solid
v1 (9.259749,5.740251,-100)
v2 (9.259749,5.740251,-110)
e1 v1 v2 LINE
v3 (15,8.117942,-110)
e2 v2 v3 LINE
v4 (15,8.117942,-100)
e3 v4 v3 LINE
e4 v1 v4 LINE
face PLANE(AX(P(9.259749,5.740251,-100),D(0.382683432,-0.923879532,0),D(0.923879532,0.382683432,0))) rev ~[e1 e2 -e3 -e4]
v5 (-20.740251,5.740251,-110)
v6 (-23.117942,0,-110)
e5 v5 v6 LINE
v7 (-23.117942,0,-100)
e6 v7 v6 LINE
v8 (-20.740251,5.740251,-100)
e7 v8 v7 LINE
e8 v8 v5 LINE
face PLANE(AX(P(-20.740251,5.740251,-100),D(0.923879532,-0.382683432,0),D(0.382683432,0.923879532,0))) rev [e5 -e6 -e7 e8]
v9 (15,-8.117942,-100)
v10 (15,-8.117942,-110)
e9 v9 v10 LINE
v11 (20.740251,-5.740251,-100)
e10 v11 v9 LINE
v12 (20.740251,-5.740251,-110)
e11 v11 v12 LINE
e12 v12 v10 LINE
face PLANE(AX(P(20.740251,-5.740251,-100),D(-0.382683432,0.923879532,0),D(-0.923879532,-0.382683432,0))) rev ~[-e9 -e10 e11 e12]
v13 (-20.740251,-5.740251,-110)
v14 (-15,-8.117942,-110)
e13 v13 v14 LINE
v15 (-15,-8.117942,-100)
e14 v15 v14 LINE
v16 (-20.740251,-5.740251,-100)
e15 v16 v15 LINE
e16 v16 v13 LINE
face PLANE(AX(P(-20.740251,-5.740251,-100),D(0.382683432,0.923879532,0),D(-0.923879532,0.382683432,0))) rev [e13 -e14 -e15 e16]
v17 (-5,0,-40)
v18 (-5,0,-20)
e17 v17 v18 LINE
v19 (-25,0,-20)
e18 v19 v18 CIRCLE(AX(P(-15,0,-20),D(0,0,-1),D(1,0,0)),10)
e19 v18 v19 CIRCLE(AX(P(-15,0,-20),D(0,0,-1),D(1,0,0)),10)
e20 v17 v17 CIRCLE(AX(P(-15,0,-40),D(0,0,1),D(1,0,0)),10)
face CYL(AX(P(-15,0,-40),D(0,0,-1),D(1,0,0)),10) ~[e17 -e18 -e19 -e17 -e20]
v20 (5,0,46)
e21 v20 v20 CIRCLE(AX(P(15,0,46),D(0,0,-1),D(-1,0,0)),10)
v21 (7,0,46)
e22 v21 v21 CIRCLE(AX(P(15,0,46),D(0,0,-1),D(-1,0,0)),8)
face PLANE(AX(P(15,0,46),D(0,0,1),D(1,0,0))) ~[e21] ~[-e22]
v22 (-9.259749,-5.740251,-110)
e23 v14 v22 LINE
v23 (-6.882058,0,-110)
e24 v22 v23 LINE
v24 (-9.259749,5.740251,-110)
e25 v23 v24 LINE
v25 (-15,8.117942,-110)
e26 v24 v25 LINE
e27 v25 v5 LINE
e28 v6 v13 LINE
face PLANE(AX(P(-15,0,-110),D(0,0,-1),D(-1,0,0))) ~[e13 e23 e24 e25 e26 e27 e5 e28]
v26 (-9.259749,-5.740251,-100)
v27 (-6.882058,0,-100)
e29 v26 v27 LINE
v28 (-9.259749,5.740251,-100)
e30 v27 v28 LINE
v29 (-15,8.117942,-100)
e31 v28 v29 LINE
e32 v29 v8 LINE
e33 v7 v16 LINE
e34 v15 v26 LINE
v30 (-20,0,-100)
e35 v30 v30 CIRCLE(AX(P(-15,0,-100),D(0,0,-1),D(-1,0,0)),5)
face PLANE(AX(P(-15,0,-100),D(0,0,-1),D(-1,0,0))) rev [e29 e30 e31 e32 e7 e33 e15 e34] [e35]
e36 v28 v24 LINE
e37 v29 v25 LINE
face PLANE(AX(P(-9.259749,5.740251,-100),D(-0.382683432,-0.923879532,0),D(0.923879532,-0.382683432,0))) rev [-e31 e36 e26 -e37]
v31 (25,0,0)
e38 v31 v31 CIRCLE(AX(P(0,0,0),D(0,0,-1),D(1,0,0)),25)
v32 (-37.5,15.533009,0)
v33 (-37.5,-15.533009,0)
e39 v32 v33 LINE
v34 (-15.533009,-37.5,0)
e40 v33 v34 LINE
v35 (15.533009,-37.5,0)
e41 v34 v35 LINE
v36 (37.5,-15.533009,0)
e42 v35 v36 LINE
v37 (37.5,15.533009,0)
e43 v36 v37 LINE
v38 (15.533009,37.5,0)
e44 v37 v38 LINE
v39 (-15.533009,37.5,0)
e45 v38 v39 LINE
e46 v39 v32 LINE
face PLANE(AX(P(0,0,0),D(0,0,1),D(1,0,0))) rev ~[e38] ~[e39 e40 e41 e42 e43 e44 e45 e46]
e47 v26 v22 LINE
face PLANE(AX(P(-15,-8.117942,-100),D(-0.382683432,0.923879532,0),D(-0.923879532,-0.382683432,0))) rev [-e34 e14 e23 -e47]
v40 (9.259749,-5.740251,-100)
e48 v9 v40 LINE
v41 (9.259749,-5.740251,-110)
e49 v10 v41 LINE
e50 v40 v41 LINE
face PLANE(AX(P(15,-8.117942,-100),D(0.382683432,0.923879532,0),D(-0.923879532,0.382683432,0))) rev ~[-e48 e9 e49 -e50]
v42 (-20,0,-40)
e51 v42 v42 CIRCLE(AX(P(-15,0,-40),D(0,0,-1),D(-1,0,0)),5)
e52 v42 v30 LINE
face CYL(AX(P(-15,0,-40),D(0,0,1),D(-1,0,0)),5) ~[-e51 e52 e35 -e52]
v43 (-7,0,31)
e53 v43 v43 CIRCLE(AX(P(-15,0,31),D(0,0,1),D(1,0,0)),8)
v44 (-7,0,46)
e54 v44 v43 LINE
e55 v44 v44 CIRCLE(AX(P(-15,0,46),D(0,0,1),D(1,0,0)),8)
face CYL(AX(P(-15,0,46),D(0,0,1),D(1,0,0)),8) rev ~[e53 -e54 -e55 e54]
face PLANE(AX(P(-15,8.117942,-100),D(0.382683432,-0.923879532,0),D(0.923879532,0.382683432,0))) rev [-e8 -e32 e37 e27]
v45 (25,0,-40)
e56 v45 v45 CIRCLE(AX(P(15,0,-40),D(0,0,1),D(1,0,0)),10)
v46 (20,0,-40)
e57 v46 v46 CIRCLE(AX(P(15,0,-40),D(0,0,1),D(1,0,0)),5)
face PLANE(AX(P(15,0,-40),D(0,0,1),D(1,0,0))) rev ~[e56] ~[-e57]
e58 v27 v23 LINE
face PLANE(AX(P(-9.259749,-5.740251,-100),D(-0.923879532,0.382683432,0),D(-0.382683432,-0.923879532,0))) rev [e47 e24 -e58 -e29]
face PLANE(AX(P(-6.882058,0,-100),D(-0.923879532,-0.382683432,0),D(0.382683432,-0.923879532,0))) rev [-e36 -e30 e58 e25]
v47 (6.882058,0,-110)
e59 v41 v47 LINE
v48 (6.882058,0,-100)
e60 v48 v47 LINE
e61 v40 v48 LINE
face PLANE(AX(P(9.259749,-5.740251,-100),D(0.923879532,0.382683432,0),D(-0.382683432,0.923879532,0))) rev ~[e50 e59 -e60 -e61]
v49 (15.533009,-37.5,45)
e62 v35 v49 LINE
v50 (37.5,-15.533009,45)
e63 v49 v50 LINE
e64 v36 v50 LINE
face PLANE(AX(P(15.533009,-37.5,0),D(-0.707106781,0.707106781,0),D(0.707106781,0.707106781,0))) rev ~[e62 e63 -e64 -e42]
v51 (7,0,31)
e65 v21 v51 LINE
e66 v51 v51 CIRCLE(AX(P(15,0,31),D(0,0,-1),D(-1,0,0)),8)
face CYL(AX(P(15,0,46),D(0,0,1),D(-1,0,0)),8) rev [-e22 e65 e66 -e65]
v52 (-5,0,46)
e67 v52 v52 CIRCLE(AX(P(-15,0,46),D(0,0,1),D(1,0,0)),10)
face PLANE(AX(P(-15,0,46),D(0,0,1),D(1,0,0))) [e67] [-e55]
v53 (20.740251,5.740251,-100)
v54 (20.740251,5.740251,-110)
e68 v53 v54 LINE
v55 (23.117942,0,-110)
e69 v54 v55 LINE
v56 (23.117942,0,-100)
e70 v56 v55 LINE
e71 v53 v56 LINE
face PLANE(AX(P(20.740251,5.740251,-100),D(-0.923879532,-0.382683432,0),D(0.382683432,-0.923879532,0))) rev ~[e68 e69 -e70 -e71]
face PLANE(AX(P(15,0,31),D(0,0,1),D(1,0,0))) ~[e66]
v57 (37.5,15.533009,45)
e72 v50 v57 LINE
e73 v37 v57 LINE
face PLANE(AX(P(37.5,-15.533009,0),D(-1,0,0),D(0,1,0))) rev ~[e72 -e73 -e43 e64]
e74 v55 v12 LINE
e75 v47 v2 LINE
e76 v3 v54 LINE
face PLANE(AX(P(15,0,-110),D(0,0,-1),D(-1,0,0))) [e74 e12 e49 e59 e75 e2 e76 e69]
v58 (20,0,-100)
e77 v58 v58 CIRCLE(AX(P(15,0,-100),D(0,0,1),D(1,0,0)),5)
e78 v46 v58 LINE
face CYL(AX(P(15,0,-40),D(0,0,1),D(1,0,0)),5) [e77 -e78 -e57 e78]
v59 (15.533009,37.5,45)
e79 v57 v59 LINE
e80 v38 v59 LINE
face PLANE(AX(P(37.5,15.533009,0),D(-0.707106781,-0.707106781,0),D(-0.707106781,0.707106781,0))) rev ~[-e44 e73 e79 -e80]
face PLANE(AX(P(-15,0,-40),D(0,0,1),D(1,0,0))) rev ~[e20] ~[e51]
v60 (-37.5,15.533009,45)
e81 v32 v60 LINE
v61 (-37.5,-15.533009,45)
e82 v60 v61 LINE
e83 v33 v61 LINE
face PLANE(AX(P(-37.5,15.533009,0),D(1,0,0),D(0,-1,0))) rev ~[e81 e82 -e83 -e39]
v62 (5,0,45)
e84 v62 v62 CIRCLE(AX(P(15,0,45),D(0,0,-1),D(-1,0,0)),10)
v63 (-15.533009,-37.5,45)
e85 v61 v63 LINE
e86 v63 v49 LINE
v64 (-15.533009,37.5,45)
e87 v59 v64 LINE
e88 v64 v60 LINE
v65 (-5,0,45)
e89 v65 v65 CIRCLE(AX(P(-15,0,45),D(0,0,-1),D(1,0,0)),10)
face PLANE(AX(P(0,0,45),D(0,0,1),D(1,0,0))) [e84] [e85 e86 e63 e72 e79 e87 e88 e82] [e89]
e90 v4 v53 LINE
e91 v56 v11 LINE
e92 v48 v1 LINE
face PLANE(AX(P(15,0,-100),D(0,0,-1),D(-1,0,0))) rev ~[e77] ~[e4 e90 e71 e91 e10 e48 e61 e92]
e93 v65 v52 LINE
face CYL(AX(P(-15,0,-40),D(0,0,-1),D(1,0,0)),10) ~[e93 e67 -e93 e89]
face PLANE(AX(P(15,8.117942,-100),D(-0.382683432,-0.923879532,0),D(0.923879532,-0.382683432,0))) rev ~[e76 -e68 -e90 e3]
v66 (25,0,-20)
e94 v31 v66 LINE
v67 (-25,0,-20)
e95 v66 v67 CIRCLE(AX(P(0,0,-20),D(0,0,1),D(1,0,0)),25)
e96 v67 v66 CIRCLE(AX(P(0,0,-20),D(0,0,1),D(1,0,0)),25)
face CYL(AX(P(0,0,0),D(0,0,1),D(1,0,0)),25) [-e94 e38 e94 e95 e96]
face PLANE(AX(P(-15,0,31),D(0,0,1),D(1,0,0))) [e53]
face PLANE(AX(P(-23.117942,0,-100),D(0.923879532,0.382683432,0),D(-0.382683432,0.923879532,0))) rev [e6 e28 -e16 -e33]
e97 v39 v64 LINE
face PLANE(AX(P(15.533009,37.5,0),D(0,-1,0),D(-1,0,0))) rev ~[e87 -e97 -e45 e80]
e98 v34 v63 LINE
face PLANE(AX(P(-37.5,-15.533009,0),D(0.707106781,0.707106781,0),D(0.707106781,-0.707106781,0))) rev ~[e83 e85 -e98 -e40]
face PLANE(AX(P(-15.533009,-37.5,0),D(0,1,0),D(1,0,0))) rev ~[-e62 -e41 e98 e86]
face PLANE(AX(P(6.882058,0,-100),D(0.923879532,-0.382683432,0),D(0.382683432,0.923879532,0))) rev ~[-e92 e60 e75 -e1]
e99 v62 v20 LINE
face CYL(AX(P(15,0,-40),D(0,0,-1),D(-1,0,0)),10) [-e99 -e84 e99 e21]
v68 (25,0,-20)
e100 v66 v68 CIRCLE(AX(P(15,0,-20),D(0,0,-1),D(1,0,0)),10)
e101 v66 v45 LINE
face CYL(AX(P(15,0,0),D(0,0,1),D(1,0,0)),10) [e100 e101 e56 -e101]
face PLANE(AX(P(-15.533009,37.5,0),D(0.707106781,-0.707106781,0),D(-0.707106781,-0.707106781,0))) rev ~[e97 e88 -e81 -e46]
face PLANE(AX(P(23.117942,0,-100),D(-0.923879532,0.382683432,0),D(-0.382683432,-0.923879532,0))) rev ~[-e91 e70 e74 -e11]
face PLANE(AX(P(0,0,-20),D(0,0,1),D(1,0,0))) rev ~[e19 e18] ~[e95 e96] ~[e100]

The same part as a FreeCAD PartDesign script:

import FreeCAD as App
import Part
import Sketcher

V = App.Vector
Q = App.Units.Quantity


def add_polygon(sketch, points):
    """Adds a closed chain of lines whose ends are joined by coincident constraints."""
    first, n = sketch.GeometryCount, len(points)
    for a, b in zip(points, points[1:] + points[:1]):
        sketch.addGeometry(Part.LineSegment(App.Vector(*a, 0), App.Vector(*b, 0)), False)
    for i in range(n):
        sketch.addConstraint(Sketcher.Constraint("Coincident", first + i, 2, first + (i + 1) % n, 1))

doc = App.newDocument("Part")
body = doc.addObject("PartDesign::Body", "Body")

sketch1 = doc.addObject("Sketcher::SketchObject", "Sketch")
body.addObject(sketch1)
sketch1.AttachmentSupport = (doc.XY_Plane, [""])
sketch1.MapMode = "FlatFace"
add_polygon(sketch1, [(15.533009, 37.5), (-15.533009, 37.5), (-37.5, 15.533009), (-37.5, -15.533009), (-15.533009, -37.5), (15.533009, -37.5), (37.5, -15.533009), (37.5, 15.533009)])
sketch1.addConstraint(Sketcher.Constraint("Horizontal", 0))
sketch1.addConstraint(Sketcher.Constraint("Vertical", 2))
sketch1.addConstraint(Sketcher.Constraint("Horizontal", 4))
sketch1.addConstraint(Sketcher.Constraint("Vertical", 6))
sketch1.addConstraint(Sketcher.Constraint("Symmetric", 0, 2, 4, 2, -1, 1))
sketch1.addConstraint(Sketcher.Constraint("Symmetric", 1, 2, 5, 2, -1, 1))
sketch1.addConstraint(Sketcher.Constraint("Perpendicular", 1, 3))
sketch1.addConstraint(Sketcher.Constraint("Perpendicular", 5, 7))
sketch1.addConstraint(Sketcher.Constraint("Horizontal", 2, 2, 5, 2))
sketch1.addConstraint(Sketcher.Constraint("Horizontal", 1, 2, 6, 2))
sketch1.addConstraint(Sketcher.Constraint("Vertical", 0, 2, 3, 2))
sketch1.addConstraint(Sketcher.Constraint("Equal", 4, 2))
sketch1.addConstraint(Sketcher.Constraint("DistanceY", 3, 2, 0, 2, Q("75 mm")))
sketch1.addConstraint(Sketcher.Constraint("DistanceX", 0, 2, 0, 1, Q("31.066017 mm")))
pad1 = doc.addObject("PartDesign::Pad", "Pad")
body.addObject(pad1)
pad1.Profile = sketch1
pad1.Length = 45

sketch2 = doc.addObject("Sketcher::SketchObject", "Sketch001")
body.addObject(sketch2)
sketch2.AttachmentSupport = (doc.XY_Plane, [""])
sketch2.MapMode = "FlatFace"
sketch2.AttachmentOffset = App.Placement(V(0, 0, -40), App.Rotation())
sketch2.addGeometry(Part.Circle(V(-15, 0, 0), V(0, 0, 1), 10), False)
sketch2.addConstraint(Sketcher.Constraint("PointOnObject", 0, 3, -1))
sketch2.addConstraint(Sketcher.Constraint("Diameter", 0, Q("20 mm")))
sketch2.addConstraint(Sketcher.Constraint("DistanceX", 0, 3, -1, 1, Q("15 mm")))
pad2 = doc.addObject("PartDesign::Pad", "Pad001")
body.addObject(pad2)
pad2.Profile = sketch2
pad2.Length = 86

sketch3 = doc.addObject("Sketcher::SketchObject", "Sketch002")
body.addObject(sketch3)
sketch3.AttachmentSupport = (doc.XY_Plane, [""])
sketch3.MapMode = "FlatFace"
sketch3.addGeometry(Part.Circle(V(15, 0, 0), V(0, 0, 1), 10), False)
sketch3.addConstraint(Sketcher.Constraint("PointOnObject", 0, 3, -1))
sketch3.addConstraint(Sketcher.Constraint("Diameter", 0, Q("20 mm")))
sketch3.addConstraint(Sketcher.Constraint("DistanceX", -1, 1, 0, 3, Q("15 mm")))
pad3 = doc.addObject("PartDesign::Pad", "Pad002")
body.addObject(pad3)
pad3.Profile = sketch3
pad3.Length = 40
pad3.Reversed = True

sketch4 = doc.addObject("Sketcher::SketchObject", "Sketch003")
body.addObject(sketch4)
sketch4.AttachmentSupport = (doc.XY_Plane, [""])
sketch4.MapMode = "FlatFace"
sketch4.addGeometry(Part.Circle(V(0, 0, 0), V(0, 0, 1), 25), False)
sketch4.addConstraint(Sketcher.Constraint("Coincident", 0, 3, -1, 1))
sketch4.addConstraint(Sketcher.Constraint("Diameter", 0, Q("50 mm")))
pad4 = doc.addObject("PartDesign::Pad", "Pad003")
body.addObject(pad4)
pad4.Profile = sketch4
pad4.Length = 20
pad4.Reversed = True

sketch5 = doc.addObject("Sketcher::SketchObject", "Sketch004")
body.addObject(sketch5)
sketch5.AttachmentSupport = (doc.XY_Plane, [""])
sketch5.MapMode = "FlatFace"
sketch5.AttachmentOffset = App.Placement(V(0, 0, -40), App.Rotation())
sketch5.addGeometry(Part.Circle(V(-15, 0, 0), V(0, 0, 1), 5), False)
sketch5.addConstraint(Sketcher.Constraint("PointOnObject", 0, 3, -1))
sketch5.addConstraint(Sketcher.Constraint("Diameter", 0, Q("10 mm")))
sketch5.addConstraint(Sketcher.Constraint("DistanceX", 0, 3, -1, 1, Q("15 mm")))
pad5 = doc.addObject("PartDesign::Pad", "Pad004")
body.addObject(pad5)
pad5.Profile = sketch5
pad5.Length = 60
pad5.Reversed = True
doc.recompute()

mirrored = doc.addObject("PartDesign::Mirrored", "Mirrored")
body.addObject(mirrored)
mirrored.Originals = [pad5]
mirrored.MirrorPlane = (doc.YZ_Plane, [""])
body.Tip = mirrored

sketch6 = doc.addObject("Sketcher::SketchObject", "Sketch005")
body.addObject(sketch6)
sketch6.AttachmentSupport = (doc.XY_Plane, [""])
sketch6.MapMode = "FlatFace"
sketch6.AttachmentOffset = App.Placement(V(0, 0, -100), App.Rotation())
add_polygon(sketch6, [(6.882058, 0), (9.259749, 5.740251), (15, 8.117942), (20.740251, 5.740251), (23.117942, 0), (20.740251, -5.740251), (15, -8.117942), (9.259749, -5.740251)])
sketch6.addConstraint(Sketcher.Constraint("Symmetric", 2, 2, 4, 2, -1))
sketch6.addConstraint(Sketcher.Constraint("Symmetric", 1, 2, 5, 2, -1))
sketch6.addConstraint(Sketcher.Constraint("Symmetric", 0, 2, 6, 2, -1))
sketch6.addConstraint(Sketcher.Constraint("PointOnObject", 3, 2, -1))
sketch6.addConstraint(Sketcher.Constraint("PointOnObject", 7, 2, -1))
sketch6.addConstraint(Sketcher.Constraint("Perpendicular", 0, 2))
sketch6.addConstraint(Sketcher.Constraint("Perpendicular", 1, 3))
sketch6.addConstraint(Sketcher.Constraint("Perpendicular", 2, 4))
sketch6.addConstraint(Sketcher.Constraint("Horizontal", 0, 2, 2, 2))
sketch6.addConstraint(Sketcher.Constraint("Equal", 0, 1))
sketch6.addConstraint(Sketcher.Constraint("DistanceX", -1, 1, 1, 2, Q("15 mm")))
sketch6.addConstraint(Sketcher.Constraint("Angle", 0, Q("67.5 deg")))
sketch6.addConstraint(Sketcher.Constraint("DistanceX", -1, 1, 0, 2, Q("9.259749 mm")))
pad6 = doc.addObject("PartDesign::Pad", "Pad005")
body.addObject(pad6)
pad6.Profile = sketch6
pad6.Length = 10
pad6.Reversed = True
doc.recompute()

mirrored2 = doc.addObject("PartDesign::Mirrored", "Mirrored001")
body.addObject(mirrored2)
mirrored2.Originals = [pad6]
mirrored2.MirrorPlane = (doc.YZ_Plane, [""])
body.Tip = mirrored2
doc.recompute()

mirrored3 = doc.addObject("PartDesign::Mirrored", "Mirrored002")
body.addObject(mirrored3)
mirrored3.Originals = [pad2]
mirrored3.MirrorPlane = (doc.YZ_Plane, [""])
body.Tip = mirrored3

sketch7 = doc.addObject("Sketcher::SketchObject", "Sketch006")
body.addObject(sketch7)
sketch7.AttachmentSupport = (doc.XY_Plane, [""])
sketch7.MapMode = "FlatFace"
sketch7.AttachmentOffset = App.Placement(V(0, 0, 46), App.Rotation())
sketch7.addGeometry(Part.Circle(V(-15, 0, 0), V(0, 0, 1), 8), False)
sketch7.addConstraint(Sketcher.Constraint("PointOnObject", 0, 3, -1))
sketch7.addConstraint(Sketcher.Constraint("Diameter", 0, Q("16 mm")))
sketch7.addConstraint(Sketcher.Constraint("DistanceX", 0, 3, -1, 1, Q("15 mm")))
pocket1 = doc.addObject("PartDesign::Pocket", "Pocket")
body.addObject(pocket1)
pocket1.Profile = sketch7
pocket1.Length = 15
doc.recompute()

mirrored4 = doc.addObject("PartDesign::Mirrored", "Mirrored003")
body.addObject(mirrored4)
mirrored4.Originals = [pocket1]
mirrored4.MirrorPlane = (doc.YZ_Plane, [""])
body.Tip = mirrored4

doc.recompute()
